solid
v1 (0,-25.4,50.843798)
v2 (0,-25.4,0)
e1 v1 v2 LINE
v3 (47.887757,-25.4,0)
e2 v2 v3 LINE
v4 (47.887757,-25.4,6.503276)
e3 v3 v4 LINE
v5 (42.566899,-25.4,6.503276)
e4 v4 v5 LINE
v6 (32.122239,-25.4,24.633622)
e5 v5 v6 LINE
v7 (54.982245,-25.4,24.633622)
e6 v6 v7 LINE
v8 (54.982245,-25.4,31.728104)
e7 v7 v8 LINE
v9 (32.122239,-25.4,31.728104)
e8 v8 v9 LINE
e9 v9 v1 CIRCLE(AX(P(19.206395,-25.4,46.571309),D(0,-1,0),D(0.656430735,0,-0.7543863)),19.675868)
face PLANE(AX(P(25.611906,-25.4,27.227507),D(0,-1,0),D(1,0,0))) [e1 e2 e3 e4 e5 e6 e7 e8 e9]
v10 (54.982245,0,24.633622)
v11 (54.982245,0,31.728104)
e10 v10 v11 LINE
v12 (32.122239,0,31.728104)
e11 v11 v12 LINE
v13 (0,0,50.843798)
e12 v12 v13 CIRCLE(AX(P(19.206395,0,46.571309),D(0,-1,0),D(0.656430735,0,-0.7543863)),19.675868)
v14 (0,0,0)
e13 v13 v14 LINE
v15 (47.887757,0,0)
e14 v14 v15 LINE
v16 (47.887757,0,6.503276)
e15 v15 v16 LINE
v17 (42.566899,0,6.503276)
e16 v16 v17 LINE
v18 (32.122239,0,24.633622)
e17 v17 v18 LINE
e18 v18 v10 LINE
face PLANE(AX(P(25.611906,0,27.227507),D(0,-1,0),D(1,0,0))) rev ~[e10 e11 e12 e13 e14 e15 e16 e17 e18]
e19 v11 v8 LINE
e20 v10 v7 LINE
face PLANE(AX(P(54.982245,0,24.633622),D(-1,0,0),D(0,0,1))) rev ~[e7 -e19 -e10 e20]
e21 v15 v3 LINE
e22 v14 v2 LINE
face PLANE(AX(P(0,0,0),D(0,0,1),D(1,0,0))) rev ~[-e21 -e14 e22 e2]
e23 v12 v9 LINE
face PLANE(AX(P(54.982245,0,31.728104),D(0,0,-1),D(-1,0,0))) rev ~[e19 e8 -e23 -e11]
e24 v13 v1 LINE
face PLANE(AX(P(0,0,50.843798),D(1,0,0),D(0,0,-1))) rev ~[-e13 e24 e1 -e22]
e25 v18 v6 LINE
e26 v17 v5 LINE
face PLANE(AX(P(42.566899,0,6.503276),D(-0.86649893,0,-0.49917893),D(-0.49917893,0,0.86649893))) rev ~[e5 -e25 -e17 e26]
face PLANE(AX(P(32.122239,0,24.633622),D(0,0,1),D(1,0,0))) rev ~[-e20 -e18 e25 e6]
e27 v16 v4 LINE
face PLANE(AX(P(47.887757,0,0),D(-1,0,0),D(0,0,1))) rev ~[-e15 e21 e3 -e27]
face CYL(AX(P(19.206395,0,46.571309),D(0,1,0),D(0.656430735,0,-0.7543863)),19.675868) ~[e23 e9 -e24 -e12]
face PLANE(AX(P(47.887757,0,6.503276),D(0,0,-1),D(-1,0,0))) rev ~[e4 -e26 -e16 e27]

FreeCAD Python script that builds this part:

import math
import FreeCAD as App
import Part
import Sketcher
Q = App.Units.Quantity

doc = App.newDocument("Part")
body = doc.addObject("PartDesign::Body", "Body")

# Sketch on XZ plane
sketch1 = body.newObject("Sketcher::SketchObject", "Sketch")
sketch1.AttachmentSupport = (doc.getObject("XZ_Plane"), [""])
sketch1.MapMode = "FlatFace"
sketch1.addGeometry([
    Part.LineSegment(App.Vector(0, 50.843798, 0), App.Vector(0, 0, 0)),  # 0
    Part.LineSegment(App.Vector(0, 0, 0), App.Vector(47.887757, 0, 0)),  # 1
    Part.LineSegment(App.Vector(47.887757, 0, 0), App.Vector(47.887757, 6.503276, 0)),  # 2
    Part.LineSegment(App.Vector(47.887757, 6.503276, 0), App.Vector(42.566899, 6.503276, 0)),  # 3
    Part.LineSegment(App.Vector(42.566899, 6.503276, 0), App.Vector(32.122239, 24.633622, 0)),  # 4
    Part.LineSegment(App.Vector(32.122239, 24.633622, 0), App.Vector(54.982245, 24.633622, 0)),  # 5
    Part.LineSegment(App.Vector(54.982245, 24.633622, 0), App.Vector(54.982245, 31.728104, 0)),  # 6
    Part.LineSegment(App.Vector(54.982245, 31.728104, 0), App.Vector(32.122239, 31.728104, 0)),  # 7
    Part.ArcOfCircle(Part.Circle(App.Vector(19.206395, 46.571309, 0), App.Vector(0, 0, 1), 19.675868), math.radians(-48.971775), math.radians(167.458681)),  # 8
], False)
sketch1.addConstraint([
    Sketcher.Constraint("Coincident", 0, 2, 1, 1),
    Sketcher.Constraint("Coincident", 1, 2, 2, 1),
    Sketcher.Constraint("Coincident", 2, 2, 3, 1),
    Sketcher.Constraint("Coincident", 3, 2, 4, 1),
    Sketcher.Constraint("Coincident", 4, 2, 5, 1),
    Sketcher.Constraint("Coincident", 5, 2, 6, 1),
    Sketcher.Constraint("Coincident", 6, 2, 7, 1),
    Sketcher.Constraint("Coincident", 7, 2, 8, 1),
    Sketcher.Constraint("Coincident", 8, 2, 0, 1),
    Sketcher.Constraint("Vertical", 0),
    Sketcher.Constraint("Horizontal", 1),
    Sketcher.Constraint("Vertical", 2),
    Sketcher.Constraint("Horizontal", 3),
    Sketcher.Constraint("Horizontal", 5),
    Sketcher.Constraint("Vertical", 6),
    Sketcher.Constraint("Horizontal", 7),
    Sketcher.Constraint("Coincident", 0, 2, -1, 1),
    Sketcher.Constraint("Vertical", 4, 2, 7, 2),
    Sketcher.Constraint("Radius", 8, 19.675868),
    Sketcher.Constraint("DistanceX", 3, 2, 3, 1, 5.320858),
    Sketcher.Constraint("DistanceY", 6, 1, 6, 2, 7.094482),
    Sketcher.Constraint("DistanceX", -1, 1, 3, 2, 42.566899),
    Sketcher.Constraint("DistanceY", -1, 1, 8, 2, 50.843798),
    Sketcher.Constraint("Distance", 4, 20.92368),
    Sketcher.Constraint("DistanceX", 5, 1, 5, 2, 22.860006),
    Sketcher.Constraint("DistanceY", 2, 1, 2, 2, 6.503276),
    Sketcher.Constraint("DistanceY", -1, 1, 8, 3, 46.571309),
])
pad1 = body.newObject("PartDesign::Pad", "Pad")
pad1.Profile = sketch1
pad1.Length = Q("1 in")

doc.recompute()
